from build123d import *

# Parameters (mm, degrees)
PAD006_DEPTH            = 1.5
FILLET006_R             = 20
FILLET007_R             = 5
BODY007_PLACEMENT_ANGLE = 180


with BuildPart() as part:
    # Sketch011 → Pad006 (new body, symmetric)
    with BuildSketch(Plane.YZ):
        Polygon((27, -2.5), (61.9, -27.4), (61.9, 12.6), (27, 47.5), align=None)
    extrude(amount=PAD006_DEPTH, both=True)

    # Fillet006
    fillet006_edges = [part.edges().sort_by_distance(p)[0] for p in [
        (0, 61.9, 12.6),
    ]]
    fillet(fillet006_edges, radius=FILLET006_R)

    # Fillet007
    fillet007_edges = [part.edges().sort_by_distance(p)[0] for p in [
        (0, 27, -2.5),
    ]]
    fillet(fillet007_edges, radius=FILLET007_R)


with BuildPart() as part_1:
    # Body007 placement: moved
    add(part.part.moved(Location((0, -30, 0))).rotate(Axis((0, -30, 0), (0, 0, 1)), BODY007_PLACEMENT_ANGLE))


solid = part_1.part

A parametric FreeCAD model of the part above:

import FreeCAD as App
import Part
import Sketcher
Q = App.Units.Quantity


def edges_at(feature, points):
    """Names of the edges that pass closest to the given points."""
    edges = feature.Shape.Edges
    near = lambda p: min(range(len(edges)), key=lambda i: edges[i].distToShape(Part.Vertex(*p))[0])
    return sorted({f"Edge{near(p) + 1}" for p in points})

doc = App.newDocument("Part")
body = doc.addObject("PartDesign::Body", "Body")

# Sketch on YZ plane
sketch1 = doc.addObject("Sketcher::SketchObject", "Sketch")
body.addObject(sketch1)
sketch1.AttachmentSupport = (doc.YZ_Plane, [""])
sketch1.MapMode = "FlatFace"
sketch1.addGeometry(Part.LineSegment(App.Vector(27, -2, 0), App.Vector(62, -27, 0)), False)
sketch1.addGeometry(Part.LineSegment(App.Vector(62, -27, 0), App.Vector(62, 13, 0)), False)
sketch1.addGeometry(Part.LineSegment(App.Vector(62, 13, 0), App.Vector(27, 48, 0)), False)
sketch1.addGeometry(Part.LineSegment(App.Vector(27, 48, 0), App.Vector(27, -2, 0)), False)
sketch1.addConstraint(Sketcher.Constraint("Coincident", 0, 2, 1, 1))
sketch1.addConstraint(Sketcher.Constraint("Coincident", 1, 2, 2, 1))
sketch1.addConstraint(Sketcher.Constraint("Coincident", 2, 2, 3, 1))
sketch1.addConstraint(Sketcher.Constraint("Coincident", 3, 2, 0, 1))
sketch1.addConstraint(Sketcher.Constraint("Vertical", 1))
sketch1.addConstraint(Sketcher.Constraint("Vertical", 3))
sketch1.addConstraint(Sketcher.Constraint("DistanceY", 1, 1, 1, 2, Q("40 mm")))
sketch1.addConstraint(Sketcher.Constraint("DistanceY", 3, 2, 3, 1, Q("50 mm")))
sketch1.addConstraint(Sketcher.Constraint("Angle", 2, Q("135 deg")))
sketch1.addConstraint(Sketcher.Constraint("DistanceX", -1, 1, 2, 2, Q("27 mm")))
sketch1.addConstraint(Sketcher.Constraint("DistanceX", -1, 1, 0, 2, Q("61.9 mm")))
sketch1.addConstraint(Sketcher.Constraint("DistanceY", 0, 2, -1, 1, Q("27.4 mm")))
pad1 = doc.addObject("PartDesign::Pad", "Pad")
body.addObject(pad1)
pad1.Profile = sketch1
pad1.Length = 3
pad1.Midplane = True
doc.recompute()

fillet = doc.addObject("PartDesign::Fillet", "Fillet")
body.addObject(fillet)
fillet.Base = (pad1, edges_at(pad1, [(0, 61.9, 12.6)]))
fillet.Radius = 20
doc.recompute()

fillet2 = doc.addObject("PartDesign::Fillet", "Fillet001")
body.addObject(fillet2)
fillet2.Base = (fillet, edges_at(fillet, [(0, 27, -2.5)]))
fillet2.Radius = 5
body2 = doc.addObject("PartDesign::Body", "Body001")
doc.recompute()

body.Placement = App.Placement(App.Vector(0, -30, 0), App.Rotation(App.Vector(0, 0, 1), 180))
boolean = doc.addObject("PartDesign::Boolean", "Boolean")
body2.addObject(boolean)
boolean.Type = "Fuse"
boolean.addObjects([body])

doc.recompute()
